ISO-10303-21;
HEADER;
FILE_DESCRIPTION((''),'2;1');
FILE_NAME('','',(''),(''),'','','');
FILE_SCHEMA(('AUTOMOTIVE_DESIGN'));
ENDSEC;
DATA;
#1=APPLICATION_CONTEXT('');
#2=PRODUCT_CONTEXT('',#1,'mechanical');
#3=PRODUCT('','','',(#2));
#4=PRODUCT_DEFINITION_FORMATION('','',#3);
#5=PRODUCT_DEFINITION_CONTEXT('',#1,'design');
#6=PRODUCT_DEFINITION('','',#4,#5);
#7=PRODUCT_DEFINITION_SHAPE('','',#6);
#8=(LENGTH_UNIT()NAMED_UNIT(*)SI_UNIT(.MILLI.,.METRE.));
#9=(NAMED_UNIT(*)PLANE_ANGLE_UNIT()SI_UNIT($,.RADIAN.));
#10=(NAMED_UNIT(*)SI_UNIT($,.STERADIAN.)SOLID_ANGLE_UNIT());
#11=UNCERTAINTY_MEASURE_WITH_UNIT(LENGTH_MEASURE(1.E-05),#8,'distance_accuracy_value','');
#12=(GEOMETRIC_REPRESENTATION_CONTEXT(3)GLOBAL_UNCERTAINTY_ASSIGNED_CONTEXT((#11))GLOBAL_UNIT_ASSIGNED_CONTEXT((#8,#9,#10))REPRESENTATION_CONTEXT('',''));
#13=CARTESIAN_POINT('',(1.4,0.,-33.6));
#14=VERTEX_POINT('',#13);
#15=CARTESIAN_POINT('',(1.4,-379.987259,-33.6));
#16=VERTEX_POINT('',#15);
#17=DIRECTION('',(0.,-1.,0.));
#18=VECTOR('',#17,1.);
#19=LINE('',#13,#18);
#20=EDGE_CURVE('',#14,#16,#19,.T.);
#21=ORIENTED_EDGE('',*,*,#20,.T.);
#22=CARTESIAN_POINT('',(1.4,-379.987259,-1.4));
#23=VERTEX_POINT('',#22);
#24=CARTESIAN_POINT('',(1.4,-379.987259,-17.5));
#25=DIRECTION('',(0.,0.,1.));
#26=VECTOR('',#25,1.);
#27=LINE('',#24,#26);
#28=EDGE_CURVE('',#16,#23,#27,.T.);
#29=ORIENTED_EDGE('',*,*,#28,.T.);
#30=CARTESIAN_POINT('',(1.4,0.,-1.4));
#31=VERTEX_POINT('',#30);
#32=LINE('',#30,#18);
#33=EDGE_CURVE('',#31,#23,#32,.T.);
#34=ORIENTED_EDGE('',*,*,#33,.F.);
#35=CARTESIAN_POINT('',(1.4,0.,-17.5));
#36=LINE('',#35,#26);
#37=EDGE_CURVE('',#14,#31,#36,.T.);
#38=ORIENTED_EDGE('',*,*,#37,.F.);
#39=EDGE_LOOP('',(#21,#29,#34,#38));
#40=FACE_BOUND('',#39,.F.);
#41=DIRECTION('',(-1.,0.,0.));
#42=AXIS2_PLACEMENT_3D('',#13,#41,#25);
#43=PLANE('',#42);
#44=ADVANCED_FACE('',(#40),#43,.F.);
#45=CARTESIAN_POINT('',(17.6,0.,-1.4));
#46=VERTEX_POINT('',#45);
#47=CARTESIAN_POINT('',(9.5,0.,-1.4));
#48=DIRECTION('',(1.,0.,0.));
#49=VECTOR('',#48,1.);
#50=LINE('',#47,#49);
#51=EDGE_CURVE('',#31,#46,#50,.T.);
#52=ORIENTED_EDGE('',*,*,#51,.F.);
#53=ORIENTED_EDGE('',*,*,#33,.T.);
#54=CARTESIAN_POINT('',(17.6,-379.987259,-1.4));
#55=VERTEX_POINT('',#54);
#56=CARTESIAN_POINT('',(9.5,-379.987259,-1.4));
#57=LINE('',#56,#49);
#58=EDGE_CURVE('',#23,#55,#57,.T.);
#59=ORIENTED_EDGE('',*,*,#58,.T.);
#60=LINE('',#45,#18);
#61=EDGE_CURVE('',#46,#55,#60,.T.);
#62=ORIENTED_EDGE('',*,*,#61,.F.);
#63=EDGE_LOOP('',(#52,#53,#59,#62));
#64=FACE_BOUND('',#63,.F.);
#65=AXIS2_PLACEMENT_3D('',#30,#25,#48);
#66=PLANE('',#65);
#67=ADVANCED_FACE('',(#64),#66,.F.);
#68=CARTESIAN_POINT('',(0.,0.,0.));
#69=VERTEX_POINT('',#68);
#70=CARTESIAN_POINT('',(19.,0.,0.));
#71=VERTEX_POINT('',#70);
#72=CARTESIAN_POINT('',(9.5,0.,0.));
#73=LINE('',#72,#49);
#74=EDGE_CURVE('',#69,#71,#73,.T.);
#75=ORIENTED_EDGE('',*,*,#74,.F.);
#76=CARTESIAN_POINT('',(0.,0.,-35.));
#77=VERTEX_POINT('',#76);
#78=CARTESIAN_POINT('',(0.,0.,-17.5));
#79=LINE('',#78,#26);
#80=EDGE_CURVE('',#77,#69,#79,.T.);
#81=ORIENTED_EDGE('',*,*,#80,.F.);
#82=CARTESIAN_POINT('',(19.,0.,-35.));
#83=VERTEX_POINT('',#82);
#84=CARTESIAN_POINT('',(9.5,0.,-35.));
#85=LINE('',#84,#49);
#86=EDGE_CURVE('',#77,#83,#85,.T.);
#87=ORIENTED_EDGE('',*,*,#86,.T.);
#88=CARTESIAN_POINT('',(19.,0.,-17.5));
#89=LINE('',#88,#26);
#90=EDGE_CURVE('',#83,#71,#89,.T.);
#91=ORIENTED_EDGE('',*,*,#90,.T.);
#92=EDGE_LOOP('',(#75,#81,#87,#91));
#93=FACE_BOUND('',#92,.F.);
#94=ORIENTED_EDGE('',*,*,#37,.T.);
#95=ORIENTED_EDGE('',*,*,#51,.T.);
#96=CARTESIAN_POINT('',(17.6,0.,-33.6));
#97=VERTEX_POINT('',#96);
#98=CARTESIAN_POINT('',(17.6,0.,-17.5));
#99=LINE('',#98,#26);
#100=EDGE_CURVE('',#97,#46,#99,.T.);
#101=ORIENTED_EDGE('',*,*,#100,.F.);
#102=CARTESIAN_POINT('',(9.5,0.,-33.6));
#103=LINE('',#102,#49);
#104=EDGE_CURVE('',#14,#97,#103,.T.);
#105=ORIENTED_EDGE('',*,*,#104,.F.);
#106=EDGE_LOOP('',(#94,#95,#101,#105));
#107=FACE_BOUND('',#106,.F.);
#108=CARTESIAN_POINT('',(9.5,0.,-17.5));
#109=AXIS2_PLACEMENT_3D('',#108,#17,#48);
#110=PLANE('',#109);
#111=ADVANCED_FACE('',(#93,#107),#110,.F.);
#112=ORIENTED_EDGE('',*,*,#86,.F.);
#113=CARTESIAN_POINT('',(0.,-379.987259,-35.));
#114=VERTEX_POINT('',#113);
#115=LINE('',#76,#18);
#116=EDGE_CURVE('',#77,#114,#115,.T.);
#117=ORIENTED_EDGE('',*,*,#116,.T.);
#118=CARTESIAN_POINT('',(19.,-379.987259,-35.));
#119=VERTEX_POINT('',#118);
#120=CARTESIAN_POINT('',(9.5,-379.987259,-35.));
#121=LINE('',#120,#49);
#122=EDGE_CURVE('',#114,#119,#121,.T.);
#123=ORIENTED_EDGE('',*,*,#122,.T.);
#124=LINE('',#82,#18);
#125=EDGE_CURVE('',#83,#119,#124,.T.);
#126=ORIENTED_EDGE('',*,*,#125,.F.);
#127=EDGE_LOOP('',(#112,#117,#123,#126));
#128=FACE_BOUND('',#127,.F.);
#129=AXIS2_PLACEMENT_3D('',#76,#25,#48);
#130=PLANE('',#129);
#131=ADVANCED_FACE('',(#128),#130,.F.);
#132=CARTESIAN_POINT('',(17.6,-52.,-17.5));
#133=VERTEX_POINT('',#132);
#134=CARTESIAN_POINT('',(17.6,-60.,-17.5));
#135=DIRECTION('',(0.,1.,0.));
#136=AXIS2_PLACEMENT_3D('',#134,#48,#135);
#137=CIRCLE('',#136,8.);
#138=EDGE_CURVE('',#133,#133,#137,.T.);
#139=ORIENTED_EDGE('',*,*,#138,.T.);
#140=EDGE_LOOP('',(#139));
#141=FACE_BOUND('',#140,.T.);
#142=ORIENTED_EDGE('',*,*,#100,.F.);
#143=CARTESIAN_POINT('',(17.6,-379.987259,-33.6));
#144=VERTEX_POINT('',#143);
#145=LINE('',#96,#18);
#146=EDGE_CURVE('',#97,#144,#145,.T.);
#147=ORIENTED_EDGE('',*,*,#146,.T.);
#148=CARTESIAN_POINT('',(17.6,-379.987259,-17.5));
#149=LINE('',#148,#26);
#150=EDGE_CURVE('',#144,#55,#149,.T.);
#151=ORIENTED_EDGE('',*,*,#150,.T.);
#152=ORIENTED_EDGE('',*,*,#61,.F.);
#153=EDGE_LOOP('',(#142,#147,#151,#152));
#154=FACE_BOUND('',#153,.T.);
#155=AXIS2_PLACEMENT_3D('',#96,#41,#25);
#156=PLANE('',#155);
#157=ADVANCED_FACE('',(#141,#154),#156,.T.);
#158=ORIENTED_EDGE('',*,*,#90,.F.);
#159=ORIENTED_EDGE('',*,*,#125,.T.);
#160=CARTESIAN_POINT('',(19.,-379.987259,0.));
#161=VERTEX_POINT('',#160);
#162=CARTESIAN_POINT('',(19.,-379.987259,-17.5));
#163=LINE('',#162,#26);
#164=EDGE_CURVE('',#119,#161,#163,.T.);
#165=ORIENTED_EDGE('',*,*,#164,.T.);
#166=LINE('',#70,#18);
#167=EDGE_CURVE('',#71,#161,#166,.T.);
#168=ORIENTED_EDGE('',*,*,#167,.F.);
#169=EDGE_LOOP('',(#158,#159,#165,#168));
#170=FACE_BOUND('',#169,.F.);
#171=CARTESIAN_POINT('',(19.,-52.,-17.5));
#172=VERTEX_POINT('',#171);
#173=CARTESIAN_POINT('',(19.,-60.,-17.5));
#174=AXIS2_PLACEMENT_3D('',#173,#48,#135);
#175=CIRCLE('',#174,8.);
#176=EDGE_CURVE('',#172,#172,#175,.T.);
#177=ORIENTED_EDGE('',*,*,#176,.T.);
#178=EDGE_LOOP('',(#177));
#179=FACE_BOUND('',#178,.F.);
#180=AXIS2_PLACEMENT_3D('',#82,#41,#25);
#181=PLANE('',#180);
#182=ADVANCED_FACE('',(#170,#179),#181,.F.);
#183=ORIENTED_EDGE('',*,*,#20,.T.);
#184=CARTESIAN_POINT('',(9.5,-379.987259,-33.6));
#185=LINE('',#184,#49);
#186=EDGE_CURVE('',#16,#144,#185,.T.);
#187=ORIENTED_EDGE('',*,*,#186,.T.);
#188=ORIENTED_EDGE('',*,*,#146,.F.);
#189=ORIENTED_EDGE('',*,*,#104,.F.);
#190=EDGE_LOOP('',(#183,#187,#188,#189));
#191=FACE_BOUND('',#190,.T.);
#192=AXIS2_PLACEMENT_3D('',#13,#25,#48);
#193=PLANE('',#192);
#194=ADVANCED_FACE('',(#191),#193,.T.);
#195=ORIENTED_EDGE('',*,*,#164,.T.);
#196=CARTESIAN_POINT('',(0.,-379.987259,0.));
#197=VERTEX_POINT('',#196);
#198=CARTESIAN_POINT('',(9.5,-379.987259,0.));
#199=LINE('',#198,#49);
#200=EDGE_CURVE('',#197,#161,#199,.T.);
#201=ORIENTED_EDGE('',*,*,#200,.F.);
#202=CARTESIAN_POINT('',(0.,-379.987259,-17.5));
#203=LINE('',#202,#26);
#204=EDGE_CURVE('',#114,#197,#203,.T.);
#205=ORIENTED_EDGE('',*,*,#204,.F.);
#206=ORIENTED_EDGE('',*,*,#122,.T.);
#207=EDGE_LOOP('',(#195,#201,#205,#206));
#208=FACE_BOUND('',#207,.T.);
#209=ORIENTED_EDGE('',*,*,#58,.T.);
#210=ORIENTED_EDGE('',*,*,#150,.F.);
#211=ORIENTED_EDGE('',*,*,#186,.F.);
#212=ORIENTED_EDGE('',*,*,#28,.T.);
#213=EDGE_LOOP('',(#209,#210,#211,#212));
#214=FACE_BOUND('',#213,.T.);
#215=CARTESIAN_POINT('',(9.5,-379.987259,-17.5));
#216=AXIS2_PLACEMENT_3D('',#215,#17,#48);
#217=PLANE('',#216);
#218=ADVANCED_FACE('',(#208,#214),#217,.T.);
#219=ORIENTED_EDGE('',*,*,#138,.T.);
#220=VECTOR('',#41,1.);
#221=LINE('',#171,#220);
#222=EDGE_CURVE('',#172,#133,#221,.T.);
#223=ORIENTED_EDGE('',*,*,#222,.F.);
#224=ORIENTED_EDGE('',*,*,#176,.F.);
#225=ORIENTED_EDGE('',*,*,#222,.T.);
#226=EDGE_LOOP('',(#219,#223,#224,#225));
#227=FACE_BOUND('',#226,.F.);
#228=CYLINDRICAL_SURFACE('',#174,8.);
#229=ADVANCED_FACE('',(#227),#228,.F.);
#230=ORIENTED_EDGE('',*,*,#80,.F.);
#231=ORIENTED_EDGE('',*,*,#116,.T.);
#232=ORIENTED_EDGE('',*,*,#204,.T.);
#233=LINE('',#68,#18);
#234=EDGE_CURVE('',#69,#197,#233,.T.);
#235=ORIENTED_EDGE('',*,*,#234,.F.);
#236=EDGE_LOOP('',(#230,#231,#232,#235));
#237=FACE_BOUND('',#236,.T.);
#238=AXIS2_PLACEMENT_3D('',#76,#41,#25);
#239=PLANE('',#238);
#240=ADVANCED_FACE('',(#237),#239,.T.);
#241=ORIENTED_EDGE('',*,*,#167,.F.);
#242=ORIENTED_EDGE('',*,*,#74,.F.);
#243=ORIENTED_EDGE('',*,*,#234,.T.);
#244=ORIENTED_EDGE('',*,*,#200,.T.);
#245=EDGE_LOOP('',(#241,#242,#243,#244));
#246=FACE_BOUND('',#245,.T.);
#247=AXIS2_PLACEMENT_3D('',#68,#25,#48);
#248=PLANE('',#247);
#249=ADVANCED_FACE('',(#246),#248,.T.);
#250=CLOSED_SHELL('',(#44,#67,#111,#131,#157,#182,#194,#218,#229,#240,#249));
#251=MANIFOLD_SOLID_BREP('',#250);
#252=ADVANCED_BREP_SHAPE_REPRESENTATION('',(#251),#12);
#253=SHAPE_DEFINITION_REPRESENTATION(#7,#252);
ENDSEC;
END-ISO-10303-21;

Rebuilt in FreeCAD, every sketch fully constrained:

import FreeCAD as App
import Part
import Sketcher
from FreeCAD import Vector
Q = App.Units.Quantity


def add_polygon(sketch, points):
    """Adds a closed chain of lines whose ends are joined by coincident constraints."""
    first, n = sketch.GeometryCount, len(points)
    for a, b in zip(points, points[1:] + points[:1]):
        sketch.addGeometry(Part.LineSegment(App.Vector(*a, 0), App.Vector(*b, 0)), False)
    for i in range(n):
        sketch.addConstraint(Sketcher.Constraint("Coincident", first + i, 2, first + (i + 1) % n, 1))

doc = App.newDocument("Part")
body = doc.addObject("PartDesign::Body", "Body")

# Sketch on XZ plane
sketch1 = doc.addObject("Sketcher::SketchObject", "Sketch")
body.addObject(sketch1)
sketch1.AttachmentSupport = (doc.XZ_Plane, [""])
sketch1.MapMode = "FlatFace"
add_polygon(sketch1, [(0, 0), (0, -35), (19, -35), (19, 0)])  # lines 0-3
add_polygon(sketch1, [(17.6, -33.6), (1.4, -33.6), (1.4, -1.4), (17.6, -1.4)])  # lines 4-7
sketch1.addConstraint([
    Sketcher.Constraint("Vertical", 0),
    Sketcher.Constraint("Horizontal", 1),
    Sketcher.Constraint("Vertical", 2),
    Sketcher.Constraint("Horizontal", 3),
    Sketcher.Constraint("Horizontal", 4),
    Sketcher.Constraint("Vertical", 5),
    Sketcher.Constraint("Horizontal", 6),
    Sketcher.Constraint("Vertical", 7),
    Sketcher.Constraint("Coincident", 3, 2, -1, 1),
    Sketcher.Constraint("DistanceX", 1, 1, 1, 2, Q("19 mm")),
    Sketcher.Constraint("DistanceY", 0, 2, 0, 1, Q("35 mm")),
    Sketcher.Constraint("DistanceX", 4, 2, 4, 1, Q("16.2 mm")),
    Sketcher.Constraint("DistanceY", 5, 1, 5, 2, Q("32.2 mm")),
    Sketcher.Constraint("DistanceX", -1, 1, 4, 2, Q("1.4 mm")),
    Sketcher.Constraint("DistanceY", 4, 2, -1, 1, Q("33.6 mm")),
])
pad1 = doc.addObject("PartDesign::Pad", "Pad")
body.addObject(pad1)
pad1.Profile = sketch1
pad1.Length = 379.987259

# Sketch on YZ plane
sketch2 = doc.addObject("Sketcher::SketchObject", "Sketch001")
body.addObject(sketch2)
sketch2.AttachmentSupport = (doc.YZ_Plane, [""])
sketch2.MapMode = "FlatFace"
sketch2.AttachmentOffset = App.Placement(Vector(0, 0, 19), App.Rotation())
sketch2.addGeometry(Part.Circle(Vector(-60, -17.5, 0), Vector(0, 0, 1), 8), False)
sketch2.addConstraint([
    Sketcher.Constraint("Diameter", 0, Q("16 mm")),
    Sketcher.Constraint("DistanceX", 0, 3, -1, 1, Q("60 mm")),
    Sketcher.Constraint("DistanceY", 0, 3, -1, 1, Q("17.5 mm")),
])
pocket1 = doc.addObject("PartDesign::Pocket", "Pocket")
body.addObject(pocket1)
pocket1.Profile = sketch2
pocket1.Length = 15

doc.recompute()
